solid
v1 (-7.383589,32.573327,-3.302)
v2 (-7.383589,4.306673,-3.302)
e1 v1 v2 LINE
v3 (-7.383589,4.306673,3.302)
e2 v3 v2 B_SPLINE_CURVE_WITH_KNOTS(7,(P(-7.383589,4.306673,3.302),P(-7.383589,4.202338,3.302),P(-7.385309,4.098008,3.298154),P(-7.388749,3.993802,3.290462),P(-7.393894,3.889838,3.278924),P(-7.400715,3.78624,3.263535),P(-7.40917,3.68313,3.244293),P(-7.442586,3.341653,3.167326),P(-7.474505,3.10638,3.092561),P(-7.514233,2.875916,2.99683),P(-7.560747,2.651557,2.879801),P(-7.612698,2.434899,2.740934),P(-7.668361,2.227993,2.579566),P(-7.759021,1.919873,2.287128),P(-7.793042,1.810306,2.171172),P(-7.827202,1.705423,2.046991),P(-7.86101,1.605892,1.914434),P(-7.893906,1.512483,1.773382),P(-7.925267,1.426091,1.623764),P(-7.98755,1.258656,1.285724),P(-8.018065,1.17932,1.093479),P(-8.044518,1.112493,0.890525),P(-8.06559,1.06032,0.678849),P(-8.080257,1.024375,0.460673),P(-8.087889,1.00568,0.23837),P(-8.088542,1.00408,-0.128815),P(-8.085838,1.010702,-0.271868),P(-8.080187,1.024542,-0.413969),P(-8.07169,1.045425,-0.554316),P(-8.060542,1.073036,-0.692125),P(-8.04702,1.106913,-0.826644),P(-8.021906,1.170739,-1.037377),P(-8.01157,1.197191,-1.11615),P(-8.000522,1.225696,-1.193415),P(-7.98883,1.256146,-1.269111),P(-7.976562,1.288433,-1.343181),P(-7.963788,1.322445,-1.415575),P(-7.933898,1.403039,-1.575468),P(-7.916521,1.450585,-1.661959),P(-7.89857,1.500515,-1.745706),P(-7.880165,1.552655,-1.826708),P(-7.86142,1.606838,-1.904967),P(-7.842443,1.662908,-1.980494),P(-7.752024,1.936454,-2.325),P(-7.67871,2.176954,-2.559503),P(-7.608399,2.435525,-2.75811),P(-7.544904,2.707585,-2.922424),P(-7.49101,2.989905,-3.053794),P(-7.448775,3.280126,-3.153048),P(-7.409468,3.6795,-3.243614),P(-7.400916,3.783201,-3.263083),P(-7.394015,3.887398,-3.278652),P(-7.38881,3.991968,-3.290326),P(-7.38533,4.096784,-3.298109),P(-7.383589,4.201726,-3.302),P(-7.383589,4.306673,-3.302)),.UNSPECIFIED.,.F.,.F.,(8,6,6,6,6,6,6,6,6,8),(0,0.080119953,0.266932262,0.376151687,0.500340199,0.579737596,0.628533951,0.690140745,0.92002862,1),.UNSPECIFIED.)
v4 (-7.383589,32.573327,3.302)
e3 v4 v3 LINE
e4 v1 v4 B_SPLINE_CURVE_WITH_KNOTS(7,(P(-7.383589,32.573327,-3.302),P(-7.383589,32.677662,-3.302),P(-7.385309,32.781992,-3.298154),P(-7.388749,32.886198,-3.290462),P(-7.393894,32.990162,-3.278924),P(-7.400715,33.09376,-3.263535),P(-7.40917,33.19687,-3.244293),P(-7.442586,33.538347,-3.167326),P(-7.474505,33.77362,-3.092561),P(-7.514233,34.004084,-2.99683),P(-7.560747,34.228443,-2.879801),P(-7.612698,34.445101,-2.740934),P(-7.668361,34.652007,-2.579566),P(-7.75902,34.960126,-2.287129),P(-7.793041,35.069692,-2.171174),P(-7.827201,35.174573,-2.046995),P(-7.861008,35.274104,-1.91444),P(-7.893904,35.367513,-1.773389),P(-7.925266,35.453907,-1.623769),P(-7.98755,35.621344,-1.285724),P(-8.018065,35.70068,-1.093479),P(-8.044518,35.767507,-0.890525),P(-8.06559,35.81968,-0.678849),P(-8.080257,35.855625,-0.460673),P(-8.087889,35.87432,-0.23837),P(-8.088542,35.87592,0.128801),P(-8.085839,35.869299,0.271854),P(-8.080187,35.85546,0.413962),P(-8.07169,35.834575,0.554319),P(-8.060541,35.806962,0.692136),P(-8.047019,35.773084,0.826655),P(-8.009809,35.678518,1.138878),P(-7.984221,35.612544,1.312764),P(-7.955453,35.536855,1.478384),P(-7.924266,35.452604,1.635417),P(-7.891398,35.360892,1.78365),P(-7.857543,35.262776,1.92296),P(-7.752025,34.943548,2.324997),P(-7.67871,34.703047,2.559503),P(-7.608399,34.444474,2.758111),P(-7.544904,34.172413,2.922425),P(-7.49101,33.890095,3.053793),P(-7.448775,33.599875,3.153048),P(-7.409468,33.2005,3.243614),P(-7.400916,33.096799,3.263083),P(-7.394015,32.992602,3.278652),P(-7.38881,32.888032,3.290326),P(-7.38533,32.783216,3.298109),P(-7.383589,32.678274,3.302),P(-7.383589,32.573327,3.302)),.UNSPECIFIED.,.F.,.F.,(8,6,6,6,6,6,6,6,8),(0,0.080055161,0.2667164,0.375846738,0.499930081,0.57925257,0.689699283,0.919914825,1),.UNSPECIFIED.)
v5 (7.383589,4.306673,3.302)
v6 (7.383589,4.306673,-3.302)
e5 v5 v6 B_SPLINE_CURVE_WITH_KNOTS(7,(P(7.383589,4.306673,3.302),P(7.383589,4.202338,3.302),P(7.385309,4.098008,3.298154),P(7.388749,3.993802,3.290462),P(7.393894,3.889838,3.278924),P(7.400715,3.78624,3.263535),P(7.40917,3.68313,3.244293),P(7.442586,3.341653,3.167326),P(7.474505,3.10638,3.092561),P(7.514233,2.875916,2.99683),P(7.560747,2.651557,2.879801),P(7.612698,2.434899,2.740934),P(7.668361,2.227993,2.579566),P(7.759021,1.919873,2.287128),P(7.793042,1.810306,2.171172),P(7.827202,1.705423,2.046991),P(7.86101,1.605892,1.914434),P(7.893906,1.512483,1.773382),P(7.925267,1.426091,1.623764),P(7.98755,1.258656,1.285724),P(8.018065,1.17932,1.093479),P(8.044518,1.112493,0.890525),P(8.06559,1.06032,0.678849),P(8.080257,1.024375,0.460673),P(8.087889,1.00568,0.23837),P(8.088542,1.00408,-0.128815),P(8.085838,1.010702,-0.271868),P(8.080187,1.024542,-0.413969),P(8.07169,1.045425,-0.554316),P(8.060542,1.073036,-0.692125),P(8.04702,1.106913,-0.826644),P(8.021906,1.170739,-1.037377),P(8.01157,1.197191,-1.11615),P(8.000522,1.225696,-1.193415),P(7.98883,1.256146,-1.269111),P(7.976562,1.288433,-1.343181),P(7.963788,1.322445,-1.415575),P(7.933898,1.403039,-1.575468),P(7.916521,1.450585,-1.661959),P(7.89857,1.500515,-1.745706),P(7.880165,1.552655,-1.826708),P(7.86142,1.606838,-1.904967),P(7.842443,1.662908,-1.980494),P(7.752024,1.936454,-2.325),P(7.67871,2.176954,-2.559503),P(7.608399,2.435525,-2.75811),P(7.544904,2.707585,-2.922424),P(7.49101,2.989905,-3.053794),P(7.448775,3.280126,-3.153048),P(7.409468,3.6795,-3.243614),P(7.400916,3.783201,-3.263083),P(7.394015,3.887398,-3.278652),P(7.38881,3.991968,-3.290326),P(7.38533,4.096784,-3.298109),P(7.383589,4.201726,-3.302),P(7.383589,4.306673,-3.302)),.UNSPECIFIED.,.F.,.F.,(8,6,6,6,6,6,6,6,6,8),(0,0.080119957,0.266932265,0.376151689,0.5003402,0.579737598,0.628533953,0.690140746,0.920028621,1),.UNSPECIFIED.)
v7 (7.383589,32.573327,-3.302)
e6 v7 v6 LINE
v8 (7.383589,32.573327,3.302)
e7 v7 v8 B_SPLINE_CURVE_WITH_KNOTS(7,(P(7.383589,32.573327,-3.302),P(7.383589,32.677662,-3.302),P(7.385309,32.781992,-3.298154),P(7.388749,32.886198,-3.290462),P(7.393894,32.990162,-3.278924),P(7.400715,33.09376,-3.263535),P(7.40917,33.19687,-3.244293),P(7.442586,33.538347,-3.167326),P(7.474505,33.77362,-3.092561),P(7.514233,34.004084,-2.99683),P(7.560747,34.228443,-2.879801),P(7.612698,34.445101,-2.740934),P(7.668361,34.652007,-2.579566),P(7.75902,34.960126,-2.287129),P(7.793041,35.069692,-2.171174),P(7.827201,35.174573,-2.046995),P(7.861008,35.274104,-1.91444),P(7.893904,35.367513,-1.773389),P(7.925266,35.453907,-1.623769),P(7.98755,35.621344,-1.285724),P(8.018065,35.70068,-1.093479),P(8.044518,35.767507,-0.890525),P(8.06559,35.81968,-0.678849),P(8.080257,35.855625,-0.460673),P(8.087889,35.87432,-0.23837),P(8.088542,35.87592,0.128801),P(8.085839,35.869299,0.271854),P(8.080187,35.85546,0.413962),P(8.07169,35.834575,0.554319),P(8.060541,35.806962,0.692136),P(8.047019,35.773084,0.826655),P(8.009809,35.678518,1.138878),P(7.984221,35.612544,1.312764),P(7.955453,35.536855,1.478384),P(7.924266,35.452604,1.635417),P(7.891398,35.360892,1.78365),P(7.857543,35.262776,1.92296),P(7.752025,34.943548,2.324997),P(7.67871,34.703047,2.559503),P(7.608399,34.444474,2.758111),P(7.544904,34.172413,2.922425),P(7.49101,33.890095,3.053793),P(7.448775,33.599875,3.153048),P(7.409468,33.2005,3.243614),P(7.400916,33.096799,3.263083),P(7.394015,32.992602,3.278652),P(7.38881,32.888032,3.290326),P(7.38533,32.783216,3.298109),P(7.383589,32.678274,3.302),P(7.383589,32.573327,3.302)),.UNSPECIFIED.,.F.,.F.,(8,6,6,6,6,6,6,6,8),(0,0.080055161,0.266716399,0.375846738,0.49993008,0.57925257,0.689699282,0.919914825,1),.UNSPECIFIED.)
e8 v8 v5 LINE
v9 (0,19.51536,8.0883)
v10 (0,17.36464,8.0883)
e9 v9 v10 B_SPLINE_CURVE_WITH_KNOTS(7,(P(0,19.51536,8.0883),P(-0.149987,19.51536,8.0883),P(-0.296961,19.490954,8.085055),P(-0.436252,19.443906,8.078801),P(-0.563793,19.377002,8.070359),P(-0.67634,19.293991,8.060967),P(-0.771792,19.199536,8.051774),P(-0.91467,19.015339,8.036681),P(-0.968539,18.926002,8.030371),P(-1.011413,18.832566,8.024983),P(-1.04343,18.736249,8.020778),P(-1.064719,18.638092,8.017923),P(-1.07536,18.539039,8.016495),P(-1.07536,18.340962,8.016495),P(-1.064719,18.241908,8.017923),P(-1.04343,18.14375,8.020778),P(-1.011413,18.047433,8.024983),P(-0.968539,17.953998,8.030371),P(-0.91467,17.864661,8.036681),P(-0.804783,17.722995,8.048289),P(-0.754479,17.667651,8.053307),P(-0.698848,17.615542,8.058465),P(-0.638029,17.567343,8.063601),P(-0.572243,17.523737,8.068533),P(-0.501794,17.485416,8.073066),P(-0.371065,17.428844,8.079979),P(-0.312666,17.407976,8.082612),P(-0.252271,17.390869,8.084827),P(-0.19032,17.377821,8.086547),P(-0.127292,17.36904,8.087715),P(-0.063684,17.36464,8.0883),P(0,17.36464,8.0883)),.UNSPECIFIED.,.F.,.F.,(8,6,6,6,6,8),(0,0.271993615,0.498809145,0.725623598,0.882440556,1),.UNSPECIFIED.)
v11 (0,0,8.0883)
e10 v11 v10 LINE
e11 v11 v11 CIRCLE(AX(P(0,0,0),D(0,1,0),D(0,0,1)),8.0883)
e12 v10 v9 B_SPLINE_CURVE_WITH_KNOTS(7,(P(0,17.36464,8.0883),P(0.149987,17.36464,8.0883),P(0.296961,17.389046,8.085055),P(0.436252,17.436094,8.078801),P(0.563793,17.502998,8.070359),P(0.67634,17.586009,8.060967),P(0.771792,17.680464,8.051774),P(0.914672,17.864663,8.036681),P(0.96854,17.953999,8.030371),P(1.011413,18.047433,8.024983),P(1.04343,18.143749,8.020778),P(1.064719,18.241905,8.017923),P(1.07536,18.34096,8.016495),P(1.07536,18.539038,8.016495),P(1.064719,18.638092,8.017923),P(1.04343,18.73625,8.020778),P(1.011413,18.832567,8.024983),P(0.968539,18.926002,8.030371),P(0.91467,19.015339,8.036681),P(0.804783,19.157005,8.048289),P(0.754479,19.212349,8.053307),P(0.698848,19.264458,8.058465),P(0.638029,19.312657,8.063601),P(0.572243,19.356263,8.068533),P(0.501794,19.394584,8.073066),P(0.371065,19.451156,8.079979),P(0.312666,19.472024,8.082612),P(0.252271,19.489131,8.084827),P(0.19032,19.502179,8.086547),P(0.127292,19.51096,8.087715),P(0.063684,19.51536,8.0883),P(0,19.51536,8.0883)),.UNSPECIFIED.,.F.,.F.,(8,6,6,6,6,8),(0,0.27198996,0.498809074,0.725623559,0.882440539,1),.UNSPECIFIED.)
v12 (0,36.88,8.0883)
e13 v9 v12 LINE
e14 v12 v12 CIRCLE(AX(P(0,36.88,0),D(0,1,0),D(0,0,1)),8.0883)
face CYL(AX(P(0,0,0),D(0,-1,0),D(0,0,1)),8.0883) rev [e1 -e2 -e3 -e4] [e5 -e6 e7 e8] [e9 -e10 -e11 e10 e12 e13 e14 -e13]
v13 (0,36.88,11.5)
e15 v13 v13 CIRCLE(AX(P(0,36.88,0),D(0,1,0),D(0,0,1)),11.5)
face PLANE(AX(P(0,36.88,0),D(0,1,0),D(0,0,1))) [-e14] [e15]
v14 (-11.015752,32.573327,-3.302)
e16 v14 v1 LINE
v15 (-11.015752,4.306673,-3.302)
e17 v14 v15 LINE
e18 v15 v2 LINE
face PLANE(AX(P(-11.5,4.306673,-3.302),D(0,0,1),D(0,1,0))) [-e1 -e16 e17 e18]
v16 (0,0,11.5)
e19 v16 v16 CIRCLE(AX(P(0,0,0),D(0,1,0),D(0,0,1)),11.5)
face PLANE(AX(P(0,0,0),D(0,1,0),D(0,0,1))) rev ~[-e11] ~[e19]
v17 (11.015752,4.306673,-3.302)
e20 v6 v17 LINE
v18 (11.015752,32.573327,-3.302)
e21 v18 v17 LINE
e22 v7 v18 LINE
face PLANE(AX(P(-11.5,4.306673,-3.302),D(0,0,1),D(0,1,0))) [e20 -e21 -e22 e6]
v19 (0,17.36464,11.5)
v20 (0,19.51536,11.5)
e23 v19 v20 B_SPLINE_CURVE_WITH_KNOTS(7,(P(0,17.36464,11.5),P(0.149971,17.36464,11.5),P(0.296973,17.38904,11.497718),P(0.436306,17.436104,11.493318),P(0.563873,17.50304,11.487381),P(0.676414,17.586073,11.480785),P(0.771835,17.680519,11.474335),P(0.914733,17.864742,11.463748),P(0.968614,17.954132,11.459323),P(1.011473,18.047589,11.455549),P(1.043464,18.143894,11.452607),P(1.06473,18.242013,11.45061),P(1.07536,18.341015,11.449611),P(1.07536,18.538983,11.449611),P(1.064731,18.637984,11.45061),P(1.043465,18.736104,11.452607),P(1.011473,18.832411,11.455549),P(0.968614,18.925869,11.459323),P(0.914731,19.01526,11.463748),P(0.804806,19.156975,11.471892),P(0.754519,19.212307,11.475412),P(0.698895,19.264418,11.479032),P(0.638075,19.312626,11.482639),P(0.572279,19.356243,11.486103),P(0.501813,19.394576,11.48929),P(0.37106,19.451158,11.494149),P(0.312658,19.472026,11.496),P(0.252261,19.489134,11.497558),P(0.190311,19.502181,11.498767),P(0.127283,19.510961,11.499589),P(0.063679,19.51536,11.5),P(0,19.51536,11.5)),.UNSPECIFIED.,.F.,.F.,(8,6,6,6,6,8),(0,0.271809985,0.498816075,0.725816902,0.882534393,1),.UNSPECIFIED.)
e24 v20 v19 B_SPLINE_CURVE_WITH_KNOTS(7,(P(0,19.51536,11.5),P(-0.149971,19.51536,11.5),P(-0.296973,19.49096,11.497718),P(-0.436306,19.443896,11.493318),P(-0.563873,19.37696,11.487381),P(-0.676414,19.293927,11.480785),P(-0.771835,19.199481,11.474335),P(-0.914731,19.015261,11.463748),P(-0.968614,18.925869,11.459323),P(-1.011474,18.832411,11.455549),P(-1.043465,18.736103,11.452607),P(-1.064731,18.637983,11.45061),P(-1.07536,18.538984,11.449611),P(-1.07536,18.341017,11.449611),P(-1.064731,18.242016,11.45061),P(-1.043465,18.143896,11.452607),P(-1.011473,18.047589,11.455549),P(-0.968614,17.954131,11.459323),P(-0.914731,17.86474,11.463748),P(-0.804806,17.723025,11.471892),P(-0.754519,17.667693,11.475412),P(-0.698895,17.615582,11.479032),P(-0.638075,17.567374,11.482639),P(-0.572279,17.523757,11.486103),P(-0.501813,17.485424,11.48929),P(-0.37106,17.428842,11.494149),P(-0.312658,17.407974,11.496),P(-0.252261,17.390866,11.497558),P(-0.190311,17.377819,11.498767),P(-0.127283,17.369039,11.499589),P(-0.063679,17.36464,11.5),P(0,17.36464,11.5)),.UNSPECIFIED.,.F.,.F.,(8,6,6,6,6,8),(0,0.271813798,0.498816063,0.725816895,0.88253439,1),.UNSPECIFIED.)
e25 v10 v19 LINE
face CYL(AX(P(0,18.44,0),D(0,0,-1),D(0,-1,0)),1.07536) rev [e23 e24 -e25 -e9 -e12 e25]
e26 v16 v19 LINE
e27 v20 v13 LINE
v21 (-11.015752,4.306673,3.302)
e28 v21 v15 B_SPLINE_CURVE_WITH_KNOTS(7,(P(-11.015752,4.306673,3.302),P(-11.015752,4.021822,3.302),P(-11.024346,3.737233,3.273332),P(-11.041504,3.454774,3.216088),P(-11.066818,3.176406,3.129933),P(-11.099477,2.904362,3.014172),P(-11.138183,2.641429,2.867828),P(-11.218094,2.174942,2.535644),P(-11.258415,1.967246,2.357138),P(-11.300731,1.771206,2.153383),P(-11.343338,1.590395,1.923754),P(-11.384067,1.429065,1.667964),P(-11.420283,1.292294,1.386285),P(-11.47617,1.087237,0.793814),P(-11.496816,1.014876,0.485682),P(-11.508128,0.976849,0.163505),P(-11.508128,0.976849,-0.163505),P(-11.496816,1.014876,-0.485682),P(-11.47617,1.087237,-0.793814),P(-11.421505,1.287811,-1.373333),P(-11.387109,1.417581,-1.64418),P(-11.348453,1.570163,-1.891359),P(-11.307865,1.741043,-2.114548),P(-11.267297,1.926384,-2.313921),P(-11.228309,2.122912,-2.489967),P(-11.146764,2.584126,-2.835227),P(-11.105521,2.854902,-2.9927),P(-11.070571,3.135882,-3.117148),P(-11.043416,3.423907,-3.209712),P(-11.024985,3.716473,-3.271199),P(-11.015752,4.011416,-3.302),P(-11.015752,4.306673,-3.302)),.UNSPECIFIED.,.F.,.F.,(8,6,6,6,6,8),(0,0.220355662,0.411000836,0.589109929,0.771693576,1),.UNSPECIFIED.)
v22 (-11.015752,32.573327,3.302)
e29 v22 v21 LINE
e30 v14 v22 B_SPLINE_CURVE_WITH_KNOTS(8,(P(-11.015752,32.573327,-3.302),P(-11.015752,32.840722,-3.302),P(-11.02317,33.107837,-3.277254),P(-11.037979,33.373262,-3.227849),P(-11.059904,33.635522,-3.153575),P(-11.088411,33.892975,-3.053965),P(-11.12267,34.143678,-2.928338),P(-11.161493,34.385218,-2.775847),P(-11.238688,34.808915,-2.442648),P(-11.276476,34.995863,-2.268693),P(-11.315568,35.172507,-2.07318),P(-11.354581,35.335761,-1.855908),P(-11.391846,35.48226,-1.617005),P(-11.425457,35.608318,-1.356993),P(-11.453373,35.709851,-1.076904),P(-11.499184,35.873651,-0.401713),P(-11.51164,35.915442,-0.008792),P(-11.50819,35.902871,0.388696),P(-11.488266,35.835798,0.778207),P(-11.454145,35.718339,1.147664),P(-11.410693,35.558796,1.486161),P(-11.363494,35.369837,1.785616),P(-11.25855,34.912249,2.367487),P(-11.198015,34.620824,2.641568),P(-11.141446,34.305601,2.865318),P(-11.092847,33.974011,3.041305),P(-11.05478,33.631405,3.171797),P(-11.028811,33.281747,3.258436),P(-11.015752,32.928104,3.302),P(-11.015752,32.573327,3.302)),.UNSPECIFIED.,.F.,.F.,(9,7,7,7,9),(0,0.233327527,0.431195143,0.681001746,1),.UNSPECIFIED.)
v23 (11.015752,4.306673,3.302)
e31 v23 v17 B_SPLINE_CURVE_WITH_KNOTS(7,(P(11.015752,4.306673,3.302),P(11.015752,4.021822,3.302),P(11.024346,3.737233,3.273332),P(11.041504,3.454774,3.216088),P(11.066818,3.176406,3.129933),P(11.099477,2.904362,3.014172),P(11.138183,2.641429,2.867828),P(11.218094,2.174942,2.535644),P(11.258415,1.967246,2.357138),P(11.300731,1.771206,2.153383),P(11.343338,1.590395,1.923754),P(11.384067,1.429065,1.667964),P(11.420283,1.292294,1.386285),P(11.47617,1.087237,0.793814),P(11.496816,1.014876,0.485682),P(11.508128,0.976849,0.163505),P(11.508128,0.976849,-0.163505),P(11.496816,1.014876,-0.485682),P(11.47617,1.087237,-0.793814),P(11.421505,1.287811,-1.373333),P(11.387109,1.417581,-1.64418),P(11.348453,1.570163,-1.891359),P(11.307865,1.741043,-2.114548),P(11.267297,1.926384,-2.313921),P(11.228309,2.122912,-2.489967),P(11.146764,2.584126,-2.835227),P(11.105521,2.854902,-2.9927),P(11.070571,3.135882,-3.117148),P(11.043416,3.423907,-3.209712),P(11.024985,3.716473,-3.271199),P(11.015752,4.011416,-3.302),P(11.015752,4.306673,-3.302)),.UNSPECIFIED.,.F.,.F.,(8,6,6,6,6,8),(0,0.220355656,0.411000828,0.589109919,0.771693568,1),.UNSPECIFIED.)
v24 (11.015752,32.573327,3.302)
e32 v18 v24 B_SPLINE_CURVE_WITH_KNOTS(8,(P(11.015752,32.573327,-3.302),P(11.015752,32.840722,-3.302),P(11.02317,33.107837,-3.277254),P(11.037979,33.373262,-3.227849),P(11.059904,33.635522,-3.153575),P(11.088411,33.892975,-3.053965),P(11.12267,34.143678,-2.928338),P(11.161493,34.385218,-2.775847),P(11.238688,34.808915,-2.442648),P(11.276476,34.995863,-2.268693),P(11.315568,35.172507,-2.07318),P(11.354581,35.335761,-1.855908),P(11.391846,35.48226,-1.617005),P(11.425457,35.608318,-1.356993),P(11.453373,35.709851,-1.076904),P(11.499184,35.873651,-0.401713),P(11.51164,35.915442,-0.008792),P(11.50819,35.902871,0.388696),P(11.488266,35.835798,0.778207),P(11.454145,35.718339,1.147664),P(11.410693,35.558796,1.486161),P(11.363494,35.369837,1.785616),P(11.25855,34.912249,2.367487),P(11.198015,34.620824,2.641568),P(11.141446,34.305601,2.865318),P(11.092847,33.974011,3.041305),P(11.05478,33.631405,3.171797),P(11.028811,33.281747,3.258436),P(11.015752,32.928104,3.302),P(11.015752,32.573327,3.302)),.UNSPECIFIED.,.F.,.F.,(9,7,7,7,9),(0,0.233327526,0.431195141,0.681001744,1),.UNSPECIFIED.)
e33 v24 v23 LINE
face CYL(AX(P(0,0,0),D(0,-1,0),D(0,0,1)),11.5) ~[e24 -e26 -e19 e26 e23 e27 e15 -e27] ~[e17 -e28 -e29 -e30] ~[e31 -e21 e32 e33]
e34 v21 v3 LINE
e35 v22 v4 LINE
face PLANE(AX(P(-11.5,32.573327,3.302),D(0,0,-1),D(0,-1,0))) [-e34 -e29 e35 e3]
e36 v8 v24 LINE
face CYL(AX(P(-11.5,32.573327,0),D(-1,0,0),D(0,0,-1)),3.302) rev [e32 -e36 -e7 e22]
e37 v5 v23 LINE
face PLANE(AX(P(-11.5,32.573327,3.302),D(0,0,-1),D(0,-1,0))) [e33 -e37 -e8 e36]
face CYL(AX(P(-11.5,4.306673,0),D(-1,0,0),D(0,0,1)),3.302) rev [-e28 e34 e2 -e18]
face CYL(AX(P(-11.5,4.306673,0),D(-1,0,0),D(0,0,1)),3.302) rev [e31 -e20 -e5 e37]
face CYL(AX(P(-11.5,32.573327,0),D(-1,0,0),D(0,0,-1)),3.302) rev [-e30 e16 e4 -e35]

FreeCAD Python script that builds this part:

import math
import FreeCAD as App
import Part
import Sketcher

V = App.Vector
Q = App.Units.Quantity

doc = App.newDocument("Part")
body = doc.addObject("PartDesign::Body", "Body")

# Sketch on XZ plane
sketch1 = body.newObject("Sketcher::SketchObject", "Sketch")
sketch1.AttachmentSupport = (doc.getObject("XZ_Plane"), [""])
sketch1.MapMode = "FlatFace"
sketch1.addGeometry([
    Part.Circle(V(0, 0, 0), V(0, 0, 1), 12),
    Part.Circle(V(0, 0, 0), V(0, 0, 1), 8),
], False)
sketch1.addConstraint([
    Sketcher.Constraint("Coincident", 0, 3, -1, 1),
    Sketcher.Constraint("Coincident", 1, 3, -1, 1),
    Sketcher.Constraint("Diameter", 0, 23.0),
    Sketcher.Constraint("Diameter", 1, 16.1766),
])
pad1 = body.newObject("PartDesign::Pad", "Pad")
pad1.Profile = sketch1
pad1.Length = 36.88
pad1.Reversed = True

# Sketch on YZ plane
sketch2 = body.newObject("Sketcher::SketchObject", "Sketch001")
sketch2.AttachmentSupport = (doc.getObject("YZ_Plane"), [""])
sketch2.MapMode = "FlatFace"
sketch2.AttachmentOffset = App.Placement(V(0, 0, -11.5), App.Rotation())
sketch2.addGeometry([
    Part.LineSegment(V(4.3, 3.3, 0), V(32.6, 3.3, 0)),
    Part.ArcOfCircle(Part.Circle(V(32.6, 0, 0), V(0, 0, 1), 3.3), math.radians(-90), math.radians(90)),
    Part.LineSegment(V(32.6, -3.3, 0), V(4.3, -3.3, 0)),
    Part.ArcOfCircle(Part.Circle(V(4.3, 0, 0), V(0, 0, 1), 3.3), math.radians(90), math.radians(270)),
], False)
sketch2.addConstraint([
    Sketcher.Constraint("Tangent", 0, 2, 1, 2),
    Sketcher.Constraint("Tangent", 1, 1, 2, 1),
    Sketcher.Constraint("Tangent", 2, 2, 3, 2),
    Sketcher.Constraint("Tangent", 3, 1, 0, 1),
    Sketcher.Constraint("Horizontal", 0),
    Sketcher.Constraint("Horizontal", 2),
    Sketcher.Constraint("PointOnObject", 1, 3, -1),
    Sketcher.Constraint("Radius", 1, Q("0.13 in")),
    Sketcher.Constraint("DistanceX", 0, 1, 0, 2, 28.266655),
    Sketcher.Constraint("DistanceX", -1, 1, 1, 3, 32.573327),
])
pocket1 = body.newObject("PartDesign::Pocket", "Pocket")
pocket1.Profile = sketch2
pocket1.Length = Q("2.2 in")
pocket1.Reversed = True

# Sketch on XY plane
sketch3 = body.newObject("Sketcher::SketchObject", "Sketch002")
sketch3.AttachmentSupport = (doc.getObject("XY_Plane"), [""])
sketch3.MapMode = "FlatFace"
sketch3.addGeometry(Part.Circle(V(0, 18.4, 0), V(0, 0, 1), 1.1), False)
sketch3.addConstraint([
    Sketcher.Constraint("PointOnObject", 0, 3, -2),
    Sketcher.Constraint("Diameter", 0, 2.150721),
    Sketcher.Constraint("DistanceY", -1, 1, 0, 3, 18.44),
])
pocket2 = body.newObject("PartDesign::Pocket", "Pocket001")
pocket2.Profile = sketch3
pocket2.Type = "ThroughAll"
pocket2.Reversed = True

doc.recompute()
